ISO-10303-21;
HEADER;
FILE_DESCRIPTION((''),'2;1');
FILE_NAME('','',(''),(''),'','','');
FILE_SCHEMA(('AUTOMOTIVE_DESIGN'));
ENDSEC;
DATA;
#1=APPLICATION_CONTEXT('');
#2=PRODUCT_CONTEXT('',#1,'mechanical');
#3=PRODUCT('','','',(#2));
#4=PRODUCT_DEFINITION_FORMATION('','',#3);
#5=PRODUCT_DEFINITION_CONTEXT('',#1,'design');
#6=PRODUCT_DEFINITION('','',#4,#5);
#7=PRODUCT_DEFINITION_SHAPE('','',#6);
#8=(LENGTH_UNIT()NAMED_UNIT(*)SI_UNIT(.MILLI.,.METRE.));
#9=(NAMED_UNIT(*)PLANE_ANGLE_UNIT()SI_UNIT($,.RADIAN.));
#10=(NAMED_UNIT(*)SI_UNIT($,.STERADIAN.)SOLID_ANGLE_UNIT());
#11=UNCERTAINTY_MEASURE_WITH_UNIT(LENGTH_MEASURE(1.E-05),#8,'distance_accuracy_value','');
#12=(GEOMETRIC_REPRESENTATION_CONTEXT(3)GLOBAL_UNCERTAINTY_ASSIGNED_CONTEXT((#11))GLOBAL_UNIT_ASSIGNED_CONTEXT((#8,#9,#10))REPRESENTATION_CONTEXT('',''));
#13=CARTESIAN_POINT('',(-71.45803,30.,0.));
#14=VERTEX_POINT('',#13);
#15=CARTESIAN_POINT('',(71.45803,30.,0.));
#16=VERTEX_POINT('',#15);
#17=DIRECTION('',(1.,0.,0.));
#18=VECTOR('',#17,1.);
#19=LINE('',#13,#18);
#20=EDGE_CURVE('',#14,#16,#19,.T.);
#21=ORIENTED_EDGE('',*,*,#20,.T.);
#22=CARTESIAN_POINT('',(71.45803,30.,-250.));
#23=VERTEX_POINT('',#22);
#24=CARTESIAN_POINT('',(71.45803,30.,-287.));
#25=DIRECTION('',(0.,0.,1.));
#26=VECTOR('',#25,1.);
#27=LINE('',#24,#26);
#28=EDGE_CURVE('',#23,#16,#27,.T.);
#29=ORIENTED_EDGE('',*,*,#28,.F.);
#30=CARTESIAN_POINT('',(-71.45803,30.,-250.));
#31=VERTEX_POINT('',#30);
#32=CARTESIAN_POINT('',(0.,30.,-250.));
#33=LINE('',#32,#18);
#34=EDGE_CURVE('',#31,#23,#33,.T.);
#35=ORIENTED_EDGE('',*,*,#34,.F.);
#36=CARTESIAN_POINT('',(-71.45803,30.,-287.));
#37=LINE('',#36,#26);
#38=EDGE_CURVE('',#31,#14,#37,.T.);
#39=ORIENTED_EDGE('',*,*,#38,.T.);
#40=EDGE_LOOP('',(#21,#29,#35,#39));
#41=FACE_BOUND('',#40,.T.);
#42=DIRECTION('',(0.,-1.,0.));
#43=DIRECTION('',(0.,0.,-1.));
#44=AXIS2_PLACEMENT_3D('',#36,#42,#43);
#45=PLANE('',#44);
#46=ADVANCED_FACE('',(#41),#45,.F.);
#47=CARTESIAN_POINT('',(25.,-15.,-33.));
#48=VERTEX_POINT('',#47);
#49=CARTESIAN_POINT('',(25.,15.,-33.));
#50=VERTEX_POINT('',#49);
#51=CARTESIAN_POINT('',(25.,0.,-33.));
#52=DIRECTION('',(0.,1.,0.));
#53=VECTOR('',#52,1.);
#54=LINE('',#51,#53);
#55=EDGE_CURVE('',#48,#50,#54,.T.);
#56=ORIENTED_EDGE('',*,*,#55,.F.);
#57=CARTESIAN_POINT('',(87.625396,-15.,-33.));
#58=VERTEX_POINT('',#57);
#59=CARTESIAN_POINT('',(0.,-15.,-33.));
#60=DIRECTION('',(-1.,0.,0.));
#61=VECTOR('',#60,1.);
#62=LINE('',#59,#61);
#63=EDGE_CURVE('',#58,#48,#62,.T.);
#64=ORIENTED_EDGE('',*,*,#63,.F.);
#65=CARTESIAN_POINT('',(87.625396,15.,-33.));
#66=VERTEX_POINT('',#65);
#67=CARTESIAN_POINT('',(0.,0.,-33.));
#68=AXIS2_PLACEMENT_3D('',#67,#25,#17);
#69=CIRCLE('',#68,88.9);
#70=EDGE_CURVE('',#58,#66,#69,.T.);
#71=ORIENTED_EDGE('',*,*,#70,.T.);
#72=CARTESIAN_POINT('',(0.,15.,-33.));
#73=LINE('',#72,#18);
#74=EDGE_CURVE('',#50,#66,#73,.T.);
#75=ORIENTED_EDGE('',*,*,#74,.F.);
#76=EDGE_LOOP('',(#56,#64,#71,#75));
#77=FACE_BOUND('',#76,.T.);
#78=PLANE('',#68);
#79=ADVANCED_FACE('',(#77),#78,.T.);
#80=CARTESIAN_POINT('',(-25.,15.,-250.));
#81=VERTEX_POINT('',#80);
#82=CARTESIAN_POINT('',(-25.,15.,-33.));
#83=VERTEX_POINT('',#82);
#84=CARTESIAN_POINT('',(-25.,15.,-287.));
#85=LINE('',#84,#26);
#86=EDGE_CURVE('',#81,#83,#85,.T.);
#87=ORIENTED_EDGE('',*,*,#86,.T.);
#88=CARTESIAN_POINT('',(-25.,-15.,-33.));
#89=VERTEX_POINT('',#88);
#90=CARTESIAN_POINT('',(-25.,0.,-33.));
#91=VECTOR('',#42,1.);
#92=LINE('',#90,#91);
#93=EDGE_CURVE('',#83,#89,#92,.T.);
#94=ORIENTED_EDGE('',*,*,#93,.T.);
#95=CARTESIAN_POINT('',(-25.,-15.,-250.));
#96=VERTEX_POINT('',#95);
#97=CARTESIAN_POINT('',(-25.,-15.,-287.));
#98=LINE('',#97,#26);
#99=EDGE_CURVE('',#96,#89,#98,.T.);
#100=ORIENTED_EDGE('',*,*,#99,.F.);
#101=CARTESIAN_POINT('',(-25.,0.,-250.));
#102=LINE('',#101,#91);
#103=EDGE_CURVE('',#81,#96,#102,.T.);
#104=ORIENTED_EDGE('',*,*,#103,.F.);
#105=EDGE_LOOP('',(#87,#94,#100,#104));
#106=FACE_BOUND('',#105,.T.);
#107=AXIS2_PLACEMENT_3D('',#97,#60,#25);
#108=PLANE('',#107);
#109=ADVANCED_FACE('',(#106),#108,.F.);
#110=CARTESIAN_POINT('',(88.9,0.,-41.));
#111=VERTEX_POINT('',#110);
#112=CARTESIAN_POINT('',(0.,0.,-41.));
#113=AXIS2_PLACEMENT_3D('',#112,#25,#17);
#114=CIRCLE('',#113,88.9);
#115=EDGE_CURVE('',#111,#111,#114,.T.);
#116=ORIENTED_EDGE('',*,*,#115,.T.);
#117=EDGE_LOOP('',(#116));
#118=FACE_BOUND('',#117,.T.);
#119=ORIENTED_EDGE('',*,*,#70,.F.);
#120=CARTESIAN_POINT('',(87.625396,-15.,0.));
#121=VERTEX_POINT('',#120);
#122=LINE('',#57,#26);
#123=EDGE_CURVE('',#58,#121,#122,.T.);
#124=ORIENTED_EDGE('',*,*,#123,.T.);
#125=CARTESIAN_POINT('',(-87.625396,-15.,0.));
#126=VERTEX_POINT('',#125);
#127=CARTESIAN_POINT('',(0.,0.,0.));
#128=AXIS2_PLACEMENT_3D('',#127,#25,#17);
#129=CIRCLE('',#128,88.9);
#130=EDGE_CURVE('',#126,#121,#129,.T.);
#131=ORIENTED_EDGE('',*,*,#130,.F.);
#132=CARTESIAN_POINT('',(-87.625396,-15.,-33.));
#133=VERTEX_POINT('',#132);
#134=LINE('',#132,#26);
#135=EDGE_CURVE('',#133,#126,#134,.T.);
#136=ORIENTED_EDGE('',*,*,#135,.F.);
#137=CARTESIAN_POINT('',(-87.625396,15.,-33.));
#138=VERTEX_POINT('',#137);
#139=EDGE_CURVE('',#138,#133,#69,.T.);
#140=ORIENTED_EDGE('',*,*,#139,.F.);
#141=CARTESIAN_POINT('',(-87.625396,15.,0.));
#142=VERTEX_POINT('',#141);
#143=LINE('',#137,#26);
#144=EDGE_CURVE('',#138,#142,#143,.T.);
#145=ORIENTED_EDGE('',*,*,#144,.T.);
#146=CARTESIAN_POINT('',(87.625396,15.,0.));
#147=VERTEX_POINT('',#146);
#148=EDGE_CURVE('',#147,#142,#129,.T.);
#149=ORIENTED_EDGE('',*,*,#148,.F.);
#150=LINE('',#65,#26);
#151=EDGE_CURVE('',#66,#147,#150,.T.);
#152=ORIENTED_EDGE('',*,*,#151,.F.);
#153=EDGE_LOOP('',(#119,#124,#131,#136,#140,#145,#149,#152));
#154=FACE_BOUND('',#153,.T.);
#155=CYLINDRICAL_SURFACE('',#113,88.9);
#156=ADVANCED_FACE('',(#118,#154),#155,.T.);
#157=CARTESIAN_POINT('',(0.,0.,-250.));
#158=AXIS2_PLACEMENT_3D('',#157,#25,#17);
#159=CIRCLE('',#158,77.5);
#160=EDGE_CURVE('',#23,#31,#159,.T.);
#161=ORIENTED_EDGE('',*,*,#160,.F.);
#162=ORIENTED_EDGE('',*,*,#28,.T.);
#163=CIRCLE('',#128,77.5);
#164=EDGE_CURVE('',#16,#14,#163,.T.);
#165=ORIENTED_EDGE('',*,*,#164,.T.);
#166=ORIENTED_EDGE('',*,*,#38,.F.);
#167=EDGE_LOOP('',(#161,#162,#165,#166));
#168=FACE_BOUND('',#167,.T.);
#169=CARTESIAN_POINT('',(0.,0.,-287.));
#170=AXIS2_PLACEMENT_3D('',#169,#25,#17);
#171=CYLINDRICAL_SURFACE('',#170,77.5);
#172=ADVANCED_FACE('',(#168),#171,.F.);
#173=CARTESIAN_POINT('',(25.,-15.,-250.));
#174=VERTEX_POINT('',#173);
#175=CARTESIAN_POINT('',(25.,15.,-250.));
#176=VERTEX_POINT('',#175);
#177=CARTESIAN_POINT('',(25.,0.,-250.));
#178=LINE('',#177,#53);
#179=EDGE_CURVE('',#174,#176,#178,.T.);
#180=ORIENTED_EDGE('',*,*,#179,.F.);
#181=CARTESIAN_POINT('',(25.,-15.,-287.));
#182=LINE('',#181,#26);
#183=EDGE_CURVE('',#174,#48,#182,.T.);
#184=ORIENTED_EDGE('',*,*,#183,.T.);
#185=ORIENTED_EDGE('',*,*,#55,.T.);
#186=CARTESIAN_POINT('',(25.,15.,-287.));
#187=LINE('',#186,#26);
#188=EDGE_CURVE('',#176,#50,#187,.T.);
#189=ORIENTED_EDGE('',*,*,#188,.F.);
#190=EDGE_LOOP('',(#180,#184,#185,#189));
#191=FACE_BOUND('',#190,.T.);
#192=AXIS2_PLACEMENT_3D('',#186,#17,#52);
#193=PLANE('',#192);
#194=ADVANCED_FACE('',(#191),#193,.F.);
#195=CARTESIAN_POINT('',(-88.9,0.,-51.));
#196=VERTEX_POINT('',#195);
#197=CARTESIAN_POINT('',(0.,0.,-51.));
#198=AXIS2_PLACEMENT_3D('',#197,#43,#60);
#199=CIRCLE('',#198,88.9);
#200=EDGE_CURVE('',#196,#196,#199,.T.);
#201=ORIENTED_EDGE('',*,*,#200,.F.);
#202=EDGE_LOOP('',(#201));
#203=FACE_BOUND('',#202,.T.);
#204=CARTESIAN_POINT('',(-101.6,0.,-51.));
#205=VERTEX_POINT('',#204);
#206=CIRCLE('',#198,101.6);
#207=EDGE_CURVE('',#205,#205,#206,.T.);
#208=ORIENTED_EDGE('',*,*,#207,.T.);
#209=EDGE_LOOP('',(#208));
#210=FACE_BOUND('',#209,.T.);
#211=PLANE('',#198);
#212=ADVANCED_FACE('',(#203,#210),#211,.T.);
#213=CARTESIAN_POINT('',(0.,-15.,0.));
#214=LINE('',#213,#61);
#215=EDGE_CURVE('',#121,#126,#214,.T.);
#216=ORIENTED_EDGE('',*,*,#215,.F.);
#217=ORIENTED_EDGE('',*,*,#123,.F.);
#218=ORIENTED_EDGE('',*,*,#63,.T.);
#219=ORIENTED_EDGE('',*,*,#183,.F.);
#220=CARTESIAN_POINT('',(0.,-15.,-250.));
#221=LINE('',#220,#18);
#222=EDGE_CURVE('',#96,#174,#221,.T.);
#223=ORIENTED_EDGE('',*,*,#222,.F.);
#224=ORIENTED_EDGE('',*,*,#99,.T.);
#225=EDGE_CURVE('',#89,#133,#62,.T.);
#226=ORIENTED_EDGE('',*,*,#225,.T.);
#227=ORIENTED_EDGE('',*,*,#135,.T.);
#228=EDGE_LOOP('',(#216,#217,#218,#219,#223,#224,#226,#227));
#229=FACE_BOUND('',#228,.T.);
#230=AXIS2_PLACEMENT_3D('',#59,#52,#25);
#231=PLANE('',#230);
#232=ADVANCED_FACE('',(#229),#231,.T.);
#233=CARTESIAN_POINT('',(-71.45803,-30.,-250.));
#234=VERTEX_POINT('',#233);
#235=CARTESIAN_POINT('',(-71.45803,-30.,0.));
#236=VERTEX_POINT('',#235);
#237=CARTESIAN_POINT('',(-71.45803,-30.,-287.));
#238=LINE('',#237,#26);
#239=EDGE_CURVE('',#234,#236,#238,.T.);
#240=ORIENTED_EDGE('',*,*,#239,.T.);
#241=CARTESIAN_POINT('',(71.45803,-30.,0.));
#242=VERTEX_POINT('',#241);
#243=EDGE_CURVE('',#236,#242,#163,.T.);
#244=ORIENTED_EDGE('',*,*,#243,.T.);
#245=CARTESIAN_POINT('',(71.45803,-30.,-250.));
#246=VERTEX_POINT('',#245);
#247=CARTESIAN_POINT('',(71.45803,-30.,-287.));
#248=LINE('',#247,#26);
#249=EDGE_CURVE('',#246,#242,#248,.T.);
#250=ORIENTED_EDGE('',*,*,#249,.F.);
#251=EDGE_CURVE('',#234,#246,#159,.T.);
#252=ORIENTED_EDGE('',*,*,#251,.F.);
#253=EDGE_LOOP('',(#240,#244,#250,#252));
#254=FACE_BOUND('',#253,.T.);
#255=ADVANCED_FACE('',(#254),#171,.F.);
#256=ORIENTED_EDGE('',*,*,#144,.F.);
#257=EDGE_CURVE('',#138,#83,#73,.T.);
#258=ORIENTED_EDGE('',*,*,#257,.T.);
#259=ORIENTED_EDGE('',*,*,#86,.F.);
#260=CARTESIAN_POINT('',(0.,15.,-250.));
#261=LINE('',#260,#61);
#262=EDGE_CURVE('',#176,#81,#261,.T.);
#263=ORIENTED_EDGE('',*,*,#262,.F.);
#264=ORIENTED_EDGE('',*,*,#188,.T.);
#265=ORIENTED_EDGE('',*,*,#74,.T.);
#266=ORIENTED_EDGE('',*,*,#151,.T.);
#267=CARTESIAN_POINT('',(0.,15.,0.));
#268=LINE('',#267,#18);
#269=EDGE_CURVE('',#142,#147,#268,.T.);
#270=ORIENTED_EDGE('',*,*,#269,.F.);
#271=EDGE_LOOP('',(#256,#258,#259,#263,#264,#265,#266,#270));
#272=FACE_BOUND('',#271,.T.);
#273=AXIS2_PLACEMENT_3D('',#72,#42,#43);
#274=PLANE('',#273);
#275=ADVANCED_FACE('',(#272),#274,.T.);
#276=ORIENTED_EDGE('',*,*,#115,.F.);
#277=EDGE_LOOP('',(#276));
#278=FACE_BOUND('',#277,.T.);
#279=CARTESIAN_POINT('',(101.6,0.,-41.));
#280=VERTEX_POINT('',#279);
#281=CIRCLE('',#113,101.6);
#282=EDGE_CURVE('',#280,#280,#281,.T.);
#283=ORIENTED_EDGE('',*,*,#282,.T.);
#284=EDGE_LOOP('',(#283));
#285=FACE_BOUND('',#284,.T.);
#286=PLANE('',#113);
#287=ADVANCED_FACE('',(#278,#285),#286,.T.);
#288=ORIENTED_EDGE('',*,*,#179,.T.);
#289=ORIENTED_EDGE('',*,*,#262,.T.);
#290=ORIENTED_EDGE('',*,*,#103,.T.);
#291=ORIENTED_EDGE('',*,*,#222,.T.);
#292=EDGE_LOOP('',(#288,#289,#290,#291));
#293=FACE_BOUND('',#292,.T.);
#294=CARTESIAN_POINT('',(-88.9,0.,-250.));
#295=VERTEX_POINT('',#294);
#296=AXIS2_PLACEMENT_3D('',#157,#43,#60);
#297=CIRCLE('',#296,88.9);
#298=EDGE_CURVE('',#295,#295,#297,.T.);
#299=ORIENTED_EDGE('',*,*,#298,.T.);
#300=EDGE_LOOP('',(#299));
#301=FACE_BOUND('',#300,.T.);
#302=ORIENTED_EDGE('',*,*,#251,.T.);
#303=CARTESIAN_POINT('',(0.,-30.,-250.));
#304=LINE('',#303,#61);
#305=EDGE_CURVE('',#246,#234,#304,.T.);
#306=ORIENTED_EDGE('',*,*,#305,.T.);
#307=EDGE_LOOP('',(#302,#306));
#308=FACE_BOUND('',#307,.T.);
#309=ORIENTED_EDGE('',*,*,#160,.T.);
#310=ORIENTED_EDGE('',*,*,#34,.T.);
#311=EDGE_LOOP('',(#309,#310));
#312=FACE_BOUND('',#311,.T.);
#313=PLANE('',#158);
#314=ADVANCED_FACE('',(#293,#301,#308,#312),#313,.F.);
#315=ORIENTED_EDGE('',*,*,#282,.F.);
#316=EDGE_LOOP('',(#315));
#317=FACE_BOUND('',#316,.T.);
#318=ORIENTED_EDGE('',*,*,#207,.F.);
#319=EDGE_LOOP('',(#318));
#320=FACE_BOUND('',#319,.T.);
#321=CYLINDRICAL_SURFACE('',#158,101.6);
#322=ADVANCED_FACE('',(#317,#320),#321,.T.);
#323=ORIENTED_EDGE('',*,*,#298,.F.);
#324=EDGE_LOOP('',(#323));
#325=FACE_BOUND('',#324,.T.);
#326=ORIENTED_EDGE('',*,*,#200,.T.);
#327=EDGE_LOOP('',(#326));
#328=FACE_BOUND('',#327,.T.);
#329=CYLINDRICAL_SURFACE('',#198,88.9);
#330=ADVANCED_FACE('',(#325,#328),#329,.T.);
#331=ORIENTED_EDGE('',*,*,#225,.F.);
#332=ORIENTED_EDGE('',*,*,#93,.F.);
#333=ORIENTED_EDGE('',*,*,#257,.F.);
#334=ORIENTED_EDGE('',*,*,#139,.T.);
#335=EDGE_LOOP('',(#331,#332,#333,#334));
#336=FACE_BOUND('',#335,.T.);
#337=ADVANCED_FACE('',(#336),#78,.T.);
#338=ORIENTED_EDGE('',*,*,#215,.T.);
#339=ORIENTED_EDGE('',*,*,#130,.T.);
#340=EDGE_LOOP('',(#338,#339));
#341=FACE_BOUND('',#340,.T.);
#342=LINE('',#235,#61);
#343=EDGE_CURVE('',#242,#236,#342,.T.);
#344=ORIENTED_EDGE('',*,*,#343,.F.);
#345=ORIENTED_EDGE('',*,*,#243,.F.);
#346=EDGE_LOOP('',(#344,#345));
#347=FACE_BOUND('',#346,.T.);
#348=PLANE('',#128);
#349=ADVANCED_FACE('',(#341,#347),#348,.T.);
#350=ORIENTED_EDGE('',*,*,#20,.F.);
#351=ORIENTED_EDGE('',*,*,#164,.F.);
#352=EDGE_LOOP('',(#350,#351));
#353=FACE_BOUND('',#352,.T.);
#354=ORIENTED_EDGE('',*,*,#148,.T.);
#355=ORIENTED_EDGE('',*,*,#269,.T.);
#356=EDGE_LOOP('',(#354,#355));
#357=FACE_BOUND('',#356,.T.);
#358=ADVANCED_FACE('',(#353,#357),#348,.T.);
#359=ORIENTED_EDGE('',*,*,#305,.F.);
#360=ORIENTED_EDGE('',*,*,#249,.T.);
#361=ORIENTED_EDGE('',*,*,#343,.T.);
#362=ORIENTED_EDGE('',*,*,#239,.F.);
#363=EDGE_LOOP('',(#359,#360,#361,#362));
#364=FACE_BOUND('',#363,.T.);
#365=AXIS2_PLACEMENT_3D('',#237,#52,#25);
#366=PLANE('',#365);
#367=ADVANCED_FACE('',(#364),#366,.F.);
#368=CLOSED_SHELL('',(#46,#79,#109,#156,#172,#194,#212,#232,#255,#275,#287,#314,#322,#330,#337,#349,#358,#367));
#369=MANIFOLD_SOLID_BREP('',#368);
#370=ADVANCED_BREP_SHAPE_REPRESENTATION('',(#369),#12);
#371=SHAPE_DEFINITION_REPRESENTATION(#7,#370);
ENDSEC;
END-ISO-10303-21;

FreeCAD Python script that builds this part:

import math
import FreeCAD as App
import Part
import Sketcher

V = App.Vector


def add_polygon(sketch, points):
    """Adds a closed chain of lines whose ends are joined by coincident constraints."""
    first, n = sketch.GeometryCount, len(points)
    for a, b in zip(points, points[1:] + points[:1]):
        sketch.addGeometry(Part.LineSegment(App.Vector(*a, 0), App.Vector(*b, 0)), False)
    for i in range(n):
        sketch.addConstraint(Sketcher.Constraint("Coincident", first + i, 2, first + (i + 1) % n, 1))

doc = App.newDocument("Part")
body = doc.addObject("PartDesign::Body", "Body")

# Sketch on XY plane
sketch1 = doc.addObject("Sketcher::SketchObject", "Sketch")
body.addObject(sketch1)
sketch1.AttachmentSupport = (doc.XY_Plane, [""])
sketch1.MapMode = "FlatFace"
sketch1.addGeometry(Part.Circle(V(0, 0, 0), V(0, 0, 1), 102), False)
sketch1.addConstraint(Sketcher.Constraint("Coincident", 0, 3, -1, 1))
sketch1.addConstraint(Sketcher.Constraint("Diameter", 0, 203.2))
pad1 = doc.addObject("PartDesign::Pad", "Pad")
body.addObject(pad1)
pad1.Profile = sketch1
pad1.Length = 250
pad1.Reversed = True

# Sketch on XY plane
sketch2 = doc.addObject("Sketcher::SketchObject", "Sketch001")
body.addObject(sketch2)
sketch2.AttachmentSupport = (doc.XY_Plane, [""])
sketch2.MapMode = "FlatFace"
sketch2.addGeometry(Part.LineSegment(V(88, 15, 0), V(-88, 15, 0)), False)
sketch2.addGeometry(Part.ArcOfCircle(Part.Circle(V(0, 0, 0), V(0, 0, 1), 89), math.radians(170.29), math.radians(189.71)), False)
sketch2.addGeometry(Part.LineSegment(V(-88, -15, 0), V(88, -15, 0)), False)
sketch2.addGeometry(Part.ArcOfCircle(Part.Circle(V(0, 0, 0), V(0, 0, 1), 89), math.radians(-9.71), math.radians(0)), False)
sketch2.addGeometry(Part.ArcOfCircle(Part.Circle(V(0, 0, 0), V(0, 0, 1), 89), math.radians(0), math.radians(9.71)), False)
sketch2.addConstraint(Sketcher.Constraint("Coincident", 0, 2, 1, 1))
sketch2.addConstraint(Sketcher.Constraint("Coincident", 1, 2, 2, 1))
sketch2.addConstraint(Sketcher.Constraint("Coincident", 2, 2, 3, 1))
sketch2.addConstraint(Sketcher.Constraint("Tangent", 3, 2, 4, 1))
sketch2.addConstraint(Sketcher.Constraint("Coincident", 4, 2, 0, 1))
sketch2.addConstraint(Sketcher.Constraint("Horizontal", 0))
sketch2.addConstraint(Sketcher.Constraint("Horizontal", 2))
sketch2.addConstraint(Sketcher.Constraint("Coincident", 1, 3, -1, 1))
sketch2.addConstraint(Sketcher.Constraint("Coincident", 3, 3, -1, 1))
sketch2.addConstraint(Sketcher.Constraint("Equal", 1, 3))
sketch2.addConstraint(Sketcher.Constraint("Equal", 3, 4))
sketch2.addConstraint(Sketcher.Constraint("PointOnObject", 3, 2, -1))
sketch2.addConstraint(Sketcher.Constraint("Vertical", 0, 2, 1, 2))
sketch2.addConstraint(Sketcher.Constraint("Radius", 1, 88.9))
sketch2.addConstraint(Sketcher.Constraint("DistanceY", -1, 1, 0, 2, 15.0))
pocket1 = doc.addObject("PartDesign::Pocket", "Pocket")
body.addObject(pocket1)
pocket1.Profile = sketch2
pocket1.Length = 33

# Sketch on XY plane
sketch3 = doc.addObject("Sketcher::SketchObject", "Sketch002")
body.addObject(sketch3)
sketch3.AttachmentSupport = (doc.XY_Plane, [""])
sketch3.MapMode = "FlatFace"
sketch3.addGeometry(Part.Circle(V(0, 0, 0), V(0, 0, 1), 102), False)
sketch3.addGeometry(Part.Circle(V(0, 0, 0), V(0, 0, 1), 89), False)
sketch3.addConstraint(Sketcher.Constraint("Coincident", 0, 3, -1, 1))
sketch3.addConstraint(Sketcher.Constraint("Coincident", 1, 3, -1, 1))
sketch3.addConstraint(Sketcher.Constraint("Diameter", 0, 203.2))
sketch3.addConstraint(Sketcher.Constraint("Diameter", 1, 177.8))
pocket2 = doc.addObject("PartDesign::Pocket", "Pocket001")
body.addObject(pocket2)
pocket2.Profile = sketch3
pocket2.Length = 41

# Sketch on XY plane
sketch4 = doc.addObject("Sketcher::SketchObject", "Sketch003")
body.addObject(sketch4)
sketch4.AttachmentSupport = (doc.XY_Plane, [""])
sketch4.MapMode = "FlatFace"
sketch4.AttachmentOffset = App.Placement(V(0, 0, -51), App.Rotation())
sketch4.addGeometry(Part.Circle(V(0, 0, 0), V(0, 0, 1), 102), False)
sketch4.addGeometry(Part.Circle(V(0, 0, 0), V(0, 0, 1), 89), False)
sketch4.addConstraint(Sketcher.Constraint("Coincident", 0, 3, -1, 1))
sketch4.addConstraint(Sketcher.Constraint("Coincident", 1, 3, -1, 1))
sketch4.addConstraint(Sketcher.Constraint("Diameter", 0, 203.2))
sketch4.addConstraint(Sketcher.Constraint("Diameter", 1, 177.8))
pocket3 = doc.addObject("PartDesign::Pocket", "Pocket002")
body.addObject(pocket3)
pocket3.Profile = sketch4
pocket3.Length = 199

# Sketch on XY plane
sketch5 = doc.addObject("Sketcher::SketchObject", "Sketch004")
body.addObject(sketch5)
sketch5.AttachmentSupport = (doc.XY_Plane, [""])
sketch5.MapMode = "FlatFace"
sketch5.addGeometry(Part.LineSegment(V(-71, 30, 0), V(71, 30, 0)), False)  # 0
sketch5.addGeometry(Part.ArcOfCircle(Part.Circle(V(0, 0, 0), V(0, 0, 1), 78), math.radians(23), math.radians(157)), False)  # 1
sketch5.addGeometry(Part.LineSegment(V(71, -30, 0), V(-71, -30, 0)), False)  # 2
sketch5.addGeometry(Part.ArcOfCircle(Part.Circle(V(0, 0, 0), V(0, 0, 1), 78), math.radians(-157), math.radians(-23)), False)  # 3
add_polygon(sketch5, [(-25, 15), (-25, -15), (25, -15), (25, 15)])  # lines 4-7
sketch5.addConstraint(Sketcher.Constraint("Coincident", 0, 1, 1, 2))
sketch5.addConstraint(Sketcher.Constraint("Coincident", 1, 1, 0, 2))
sketch5.addConstraint(Sketcher.Constraint("Coincident", 2, 1, 3, 2))
sketch5.addConstraint(Sketcher.Constraint("Coincident", 3, 1, 2, 2))
sketch5.addConstraint(Sketcher.Constraint("Horizontal", 0))
sketch5.addConstraint(Sketcher.Constraint("Horizontal", 2))
sketch5.addConstraint(Sketcher.Constraint("Vertical", 4))
sketch5.addConstraint(Sketcher.Constraint("Horizontal", 5))
sketch5.addConstraint(Sketcher.Constraint("Vertical", 6))
sketch5.addConstraint(Sketcher.Constraint("Horizontal", 7))
sketch5.addConstraint(Sketcher.Constraint("Coincident", 1, 3, -1, 1))
sketch5.addConstraint(Sketcher.Constraint("Coincident", 3, 3, -1, 1))
sketch5.addConstraint(Sketcher.Constraint("Equal", 1, 3))
sketch5.addConstraint(Sketcher.Constraint("Symmetric", 4, 2, 6, 2, -1, 1))
sketch5.addConstraint(Sketcher.Constraint("Vertical", 1, 1, 2, 1))
sketch5.addConstraint(Sketcher.Constraint("Radius", 1, 77.5))
sketch5.addConstraint(Sketcher.Constraint("DistanceX", 5, 1, 5, 2, 50.0))
sketch5.addConstraint(Sketcher.Constraint("DistanceY", 4, 2, 4, 1, 30.0))
sketch5.addConstraint(Sketcher.Constraint("DistanceY", -1, 1, 0, 1, 30.0))
pocket4 = doc.addObject("PartDesign::Pocket", "Pocket003")
body.addObject(pocket4)
pocket4.Profile = sketch5
pocket4.Length = 287

doc.recompute()
